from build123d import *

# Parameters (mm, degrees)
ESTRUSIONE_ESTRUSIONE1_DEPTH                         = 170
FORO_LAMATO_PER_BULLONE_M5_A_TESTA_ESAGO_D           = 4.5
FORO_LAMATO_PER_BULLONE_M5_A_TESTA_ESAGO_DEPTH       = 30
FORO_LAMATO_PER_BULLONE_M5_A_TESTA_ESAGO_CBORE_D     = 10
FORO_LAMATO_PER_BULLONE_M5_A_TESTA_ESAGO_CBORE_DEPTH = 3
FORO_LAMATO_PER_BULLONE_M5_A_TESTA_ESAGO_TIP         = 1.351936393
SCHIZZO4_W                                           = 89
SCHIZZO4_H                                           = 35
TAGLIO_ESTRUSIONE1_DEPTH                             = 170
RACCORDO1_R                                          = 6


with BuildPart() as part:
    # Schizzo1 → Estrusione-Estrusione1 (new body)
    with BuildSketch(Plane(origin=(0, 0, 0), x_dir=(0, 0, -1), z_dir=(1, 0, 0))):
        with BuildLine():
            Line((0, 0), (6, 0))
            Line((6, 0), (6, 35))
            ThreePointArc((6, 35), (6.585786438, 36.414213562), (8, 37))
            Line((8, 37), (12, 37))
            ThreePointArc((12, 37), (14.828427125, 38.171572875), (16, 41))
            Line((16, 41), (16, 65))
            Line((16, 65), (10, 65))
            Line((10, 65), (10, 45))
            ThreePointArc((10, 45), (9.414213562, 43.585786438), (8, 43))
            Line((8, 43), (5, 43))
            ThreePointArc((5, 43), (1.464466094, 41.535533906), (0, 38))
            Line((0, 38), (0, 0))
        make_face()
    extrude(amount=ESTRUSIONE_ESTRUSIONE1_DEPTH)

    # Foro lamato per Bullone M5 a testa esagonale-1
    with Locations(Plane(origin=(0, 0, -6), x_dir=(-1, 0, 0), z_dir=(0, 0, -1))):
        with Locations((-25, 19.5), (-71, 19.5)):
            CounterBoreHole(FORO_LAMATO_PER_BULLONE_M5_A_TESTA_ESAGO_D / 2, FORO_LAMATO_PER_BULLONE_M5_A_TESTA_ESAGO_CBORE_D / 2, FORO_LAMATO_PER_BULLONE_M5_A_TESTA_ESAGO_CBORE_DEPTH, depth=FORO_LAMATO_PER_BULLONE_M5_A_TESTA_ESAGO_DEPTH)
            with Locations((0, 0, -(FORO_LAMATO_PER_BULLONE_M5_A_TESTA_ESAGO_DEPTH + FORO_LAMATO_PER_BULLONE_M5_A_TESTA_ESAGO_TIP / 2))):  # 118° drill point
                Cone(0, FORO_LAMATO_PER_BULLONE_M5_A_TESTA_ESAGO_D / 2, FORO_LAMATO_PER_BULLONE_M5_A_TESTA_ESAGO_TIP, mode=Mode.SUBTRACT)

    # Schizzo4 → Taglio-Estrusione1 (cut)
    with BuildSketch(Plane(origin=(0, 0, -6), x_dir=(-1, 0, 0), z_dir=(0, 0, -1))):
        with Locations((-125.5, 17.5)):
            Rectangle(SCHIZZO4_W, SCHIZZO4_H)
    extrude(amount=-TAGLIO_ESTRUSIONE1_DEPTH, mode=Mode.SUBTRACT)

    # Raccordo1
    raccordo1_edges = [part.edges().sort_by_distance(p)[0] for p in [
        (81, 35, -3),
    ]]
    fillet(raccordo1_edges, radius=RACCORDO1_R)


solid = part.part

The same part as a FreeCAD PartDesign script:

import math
import FreeCAD as App
import Part
import Sketcher
from FreeCAD import Vector
Q = App.Units.Quantity


def edges_at(feature, points):
    """Names of the edges that pass closest to the given points."""
    edges = feature.Shape.Edges
    near = lambda p: min(range(len(edges)), key=lambda i: edges[i].distToShape(Part.Vertex(*p))[0])
    return sorted({f"Edge{near(p) + 1}" for p in points})


def add_polygon(sketch, points):
    """Adds a closed chain of lines whose ends are joined by coincident constraints."""
    first, n = sketch.GeometryCount, len(points)
    for a, b in zip(points, points[1:] + points[:1]):
        sketch.addGeometry(Part.LineSegment(App.Vector(*a, 0), App.Vector(*b, 0)), False)
    for i in range(n):
        sketch.addConstraint(Sketcher.Constraint("Coincident", first + i, 2, first + (i + 1) % n, 1))

doc = App.newDocument("Part")
body = doc.addObject("PartDesign::Body", "Body")

sketch1 = doc.addObject("Sketcher::SketchObject", "Sketch")
body.addObject(sketch1)
sketch1.AttachmentSupport = (doc.YZ_Plane, [""])
sketch1.MapMode = "FlatFace"
sketch1.addGeometry(Part.LineSegment(Vector(0, 0, 0), Vector(0, -6, 0)), False)
sketch1.addGeometry(Part.LineSegment(Vector(0, -6, 0), Vector(35, -6, 0)), False)
sketch1.addGeometry(Part.ArcOfCircle(Part.Circle(Vector(35, -8, 0), Vector(0, 0, 1), 2), math.radians(0), math.radians(90)), False)
sketch1.addGeometry(Part.LineSegment(Vector(37, -8, 0), Vector(37, -12, 0)), False)
sketch1.addGeometry(Part.ArcOfCircle(Part.Circle(Vector(41, -12, 0), Vector(0, 0, 1), 4), math.radians(180), math.radians(270)), False)
sketch1.addGeometry(Part.LineSegment(Vector(41, -16, 0), Vector(65, -16, 0)), False)
sketch1.addGeometry(Part.LineSegment(Vector(65, -16, 0), Vector(65, -10, 0)), False)
sketch1.addGeometry(Part.LineSegment(Vector(65, -10, 0), Vector(45, -10, 0)), False)
sketch1.addGeometry(Part.ArcOfCircle(Part.Circle(Vector(45, -8, 0), Vector(0, 0, 1), 2), math.radians(-180), math.radians(-90)), False)
sketch1.addGeometry(Part.LineSegment(Vector(43, -8, 0), Vector(43, -5, 0)), False)
sketch1.addGeometry(Part.ArcOfCircle(Part.Circle(Vector(38, -5, 0), Vector(0, 0, 1), 5), math.radians(0), math.radians(90)), False)
sketch1.addGeometry(Part.LineSegment(Vector(38, 0, 0), Vector(0, 0, 0)), False)
sketch1.addConstraint(Sketcher.Constraint("Coincident", 0, 2, 1, 1))
sketch1.addConstraint(Sketcher.Constraint("Tangent", 1, 2, 2, 2))
sketch1.addConstraint(Sketcher.Constraint("Tangent", 2, 1, 3, 1))
sketch1.addConstraint(Sketcher.Constraint("Tangent", 3, 2, 4, 1))
sketch1.addConstraint(Sketcher.Constraint("Tangent", 4, 2, 5, 1))
sketch1.addConstraint(Sketcher.Constraint("Coincident", 5, 2, 6, 1))
sketch1.addConstraint(Sketcher.Constraint("Coincident", 6, 2, 7, 1))
sketch1.addConstraint(Sketcher.Constraint("Tangent", 7, 2, 8, 2))
sketch1.addConstraint(Sketcher.Constraint("Tangent", 8, 1, 9, 1))
sketch1.addConstraint(Sketcher.Constraint("Tangent", 9, 2, 10, 1))
sketch1.addConstraint(Sketcher.Constraint("Tangent", 10, 2, 11, 1))
sketch1.addConstraint(Sketcher.Constraint("Coincident", 11, 2, 0, 1))
sketch1.addConstraint(Sketcher.Constraint("Vertical", 0))
sketch1.addConstraint(Sketcher.Constraint("Horizontal", 1))
sketch1.addConstraint(Sketcher.Constraint("Vertical", 3))
sketch1.addConstraint(Sketcher.Constraint("Horizontal", 5))
sketch1.addConstraint(Sketcher.Constraint("Vertical", 6))
sketch1.addConstraint(Sketcher.Constraint("Horizontal", 7))
sketch1.addConstraint(Sketcher.Constraint("Vertical", 9))
sketch1.addConstraint(Sketcher.Constraint("Horizontal", 11))
sketch1.addConstraint(Sketcher.Constraint("Coincident", 11, 2, -1, 1))
sketch1.addConstraint(Sketcher.Constraint("Equal", 2, 8))
sketch1.addConstraint(Sketcher.Constraint("Horizontal", 2, 3, 8, 3))
sketch1.addConstraint(Sketcher.Constraint("Equal", 0, 6))
sketch1.addConstraint(Sketcher.Constraint("Radius", 2, Q("2 mm")))
sketch1.addConstraint(Sketcher.Constraint("Radius", 4, Q("4 mm")))
sketch1.addConstraint(Sketcher.Constraint("Radius", 10, Q("5 mm")))
sketch1.addConstraint(Sketcher.Constraint("DistanceX", 1, 1, 1, 2, Q("35 mm")))
sketch1.addConstraint(Sketcher.Constraint("DistanceX", 5, 1, 5, 2, Q("24 mm")))
sketch1.addConstraint(Sketcher.Constraint("DistanceX", 7, 2, 7, 1, Q("20 mm")))
sketch1.addConstraint(Sketcher.Constraint("DistanceY", 0, 2, 0, 1, Q("6 mm")))
pad1 = doc.addObject("PartDesign::Pad", "Pad")
body.addObject(pad1)
pad1.Profile = sketch1
pad1.Length = 170

sketch2 = doc.addObject("Sketcher::SketchObject", "Sketch001")
body.addObject(sketch2)
sketch2.AttachmentSupport = (doc.XY_Plane, [""])
sketch2.MapMode = "FlatFace"
sketch2.AttachmentOffset = App.Placement(Vector(0, 0, -6), App.Rotation())
sketch2.addGeometry(Part.Circle(Vector(25, 19.5, 0), Vector(0, 0, 1), 2.2), False)
sketch2.addGeometry(Part.Circle(Vector(71, 19.5, 0), Vector(0, 0, 1), 2.2), False)
sketch2.addConstraint(Sketcher.Constraint("Equal", 0, 1))
sketch2.addConstraint(Sketcher.Constraint("Horizontal", 0, 3, 1, 3))
sketch2.addConstraint(Sketcher.Constraint("Diameter", 0, Q("4.5 mm")))
sketch2.addConstraint(Sketcher.Constraint("DistanceX", -1, 1, 0, 3, Q("25 mm")))
sketch2.addConstraint(Sketcher.Constraint("DistanceX", -1, 1, 1, 3, Q("71 mm")))
sketch2.addConstraint(Sketcher.Constraint("DistanceY", -1, 1, 0, 3, Q("19.5 mm")))
doc.recompute()
hole = doc.addObject("PartDesign::Hole", "Hole")
body.addObject(hole)
hole.Profile = sketch2
hole.ThreadType = "None"
hole.Diameter = 4.5
hole.DepthType = "Dimension"
hole.Depth = 30
hole.DrillPoint = "Angled"
hole.DrillPointAngle = 118
hole.HoleCutType = "Counterbore"
hole.HoleCutDiameter = 10
hole.HoleCutDepth = 3
hole.Reversed = True

sketch3 = doc.addObject("Sketcher::SketchObject", "Sketch002")
body.addObject(sketch3)
sketch3.AttachmentSupport = (doc.XY_Plane, [""])
sketch3.MapMode = "FlatFace"
sketch3.AttachmentOffset = App.Placement(Vector(0, 0, -6), App.Rotation())
add_polygon(sketch3, [(170, 35), (170, 0), (81, 0), (81, 35)])
sketch3.addConstraint(Sketcher.Constraint("Vertical", 0))
sketch3.addConstraint(Sketcher.Constraint("Horizontal", 1))
sketch3.addConstraint(Sketcher.Constraint("Vertical", 2))
sketch3.addConstraint(Sketcher.Constraint("Horizontal", 3))
sketch3.addConstraint(Sketcher.Constraint("PointOnObject", 0, 2, -1))
sketch3.addConstraint(Sketcher.Constraint("DistanceX", 1, 2, 1, 1, Q("89 mm")))
sketch3.addConstraint(Sketcher.Constraint("DistanceY", 0, 2, 0, 1, Q("35 mm")))
sketch3.addConstraint(Sketcher.Constraint("DistanceX", -1, 1, 0, 2, Q("170 mm")))
pocket1 = doc.addObject("PartDesign::Pocket", "Pocket")
body.addObject(pocket1)
pocket1.Profile = sketch3
pocket1.Length = 170
pocket1.Reversed = True
doc.recompute()

fillet = doc.addObject("PartDesign::Fillet", "Fillet")
body.addObject(fillet)
fillet.Base = (pocket1, edges_at(pocket1, [(81, 35, -3)]))
fillet.Radius = 6

doc.recompute()
